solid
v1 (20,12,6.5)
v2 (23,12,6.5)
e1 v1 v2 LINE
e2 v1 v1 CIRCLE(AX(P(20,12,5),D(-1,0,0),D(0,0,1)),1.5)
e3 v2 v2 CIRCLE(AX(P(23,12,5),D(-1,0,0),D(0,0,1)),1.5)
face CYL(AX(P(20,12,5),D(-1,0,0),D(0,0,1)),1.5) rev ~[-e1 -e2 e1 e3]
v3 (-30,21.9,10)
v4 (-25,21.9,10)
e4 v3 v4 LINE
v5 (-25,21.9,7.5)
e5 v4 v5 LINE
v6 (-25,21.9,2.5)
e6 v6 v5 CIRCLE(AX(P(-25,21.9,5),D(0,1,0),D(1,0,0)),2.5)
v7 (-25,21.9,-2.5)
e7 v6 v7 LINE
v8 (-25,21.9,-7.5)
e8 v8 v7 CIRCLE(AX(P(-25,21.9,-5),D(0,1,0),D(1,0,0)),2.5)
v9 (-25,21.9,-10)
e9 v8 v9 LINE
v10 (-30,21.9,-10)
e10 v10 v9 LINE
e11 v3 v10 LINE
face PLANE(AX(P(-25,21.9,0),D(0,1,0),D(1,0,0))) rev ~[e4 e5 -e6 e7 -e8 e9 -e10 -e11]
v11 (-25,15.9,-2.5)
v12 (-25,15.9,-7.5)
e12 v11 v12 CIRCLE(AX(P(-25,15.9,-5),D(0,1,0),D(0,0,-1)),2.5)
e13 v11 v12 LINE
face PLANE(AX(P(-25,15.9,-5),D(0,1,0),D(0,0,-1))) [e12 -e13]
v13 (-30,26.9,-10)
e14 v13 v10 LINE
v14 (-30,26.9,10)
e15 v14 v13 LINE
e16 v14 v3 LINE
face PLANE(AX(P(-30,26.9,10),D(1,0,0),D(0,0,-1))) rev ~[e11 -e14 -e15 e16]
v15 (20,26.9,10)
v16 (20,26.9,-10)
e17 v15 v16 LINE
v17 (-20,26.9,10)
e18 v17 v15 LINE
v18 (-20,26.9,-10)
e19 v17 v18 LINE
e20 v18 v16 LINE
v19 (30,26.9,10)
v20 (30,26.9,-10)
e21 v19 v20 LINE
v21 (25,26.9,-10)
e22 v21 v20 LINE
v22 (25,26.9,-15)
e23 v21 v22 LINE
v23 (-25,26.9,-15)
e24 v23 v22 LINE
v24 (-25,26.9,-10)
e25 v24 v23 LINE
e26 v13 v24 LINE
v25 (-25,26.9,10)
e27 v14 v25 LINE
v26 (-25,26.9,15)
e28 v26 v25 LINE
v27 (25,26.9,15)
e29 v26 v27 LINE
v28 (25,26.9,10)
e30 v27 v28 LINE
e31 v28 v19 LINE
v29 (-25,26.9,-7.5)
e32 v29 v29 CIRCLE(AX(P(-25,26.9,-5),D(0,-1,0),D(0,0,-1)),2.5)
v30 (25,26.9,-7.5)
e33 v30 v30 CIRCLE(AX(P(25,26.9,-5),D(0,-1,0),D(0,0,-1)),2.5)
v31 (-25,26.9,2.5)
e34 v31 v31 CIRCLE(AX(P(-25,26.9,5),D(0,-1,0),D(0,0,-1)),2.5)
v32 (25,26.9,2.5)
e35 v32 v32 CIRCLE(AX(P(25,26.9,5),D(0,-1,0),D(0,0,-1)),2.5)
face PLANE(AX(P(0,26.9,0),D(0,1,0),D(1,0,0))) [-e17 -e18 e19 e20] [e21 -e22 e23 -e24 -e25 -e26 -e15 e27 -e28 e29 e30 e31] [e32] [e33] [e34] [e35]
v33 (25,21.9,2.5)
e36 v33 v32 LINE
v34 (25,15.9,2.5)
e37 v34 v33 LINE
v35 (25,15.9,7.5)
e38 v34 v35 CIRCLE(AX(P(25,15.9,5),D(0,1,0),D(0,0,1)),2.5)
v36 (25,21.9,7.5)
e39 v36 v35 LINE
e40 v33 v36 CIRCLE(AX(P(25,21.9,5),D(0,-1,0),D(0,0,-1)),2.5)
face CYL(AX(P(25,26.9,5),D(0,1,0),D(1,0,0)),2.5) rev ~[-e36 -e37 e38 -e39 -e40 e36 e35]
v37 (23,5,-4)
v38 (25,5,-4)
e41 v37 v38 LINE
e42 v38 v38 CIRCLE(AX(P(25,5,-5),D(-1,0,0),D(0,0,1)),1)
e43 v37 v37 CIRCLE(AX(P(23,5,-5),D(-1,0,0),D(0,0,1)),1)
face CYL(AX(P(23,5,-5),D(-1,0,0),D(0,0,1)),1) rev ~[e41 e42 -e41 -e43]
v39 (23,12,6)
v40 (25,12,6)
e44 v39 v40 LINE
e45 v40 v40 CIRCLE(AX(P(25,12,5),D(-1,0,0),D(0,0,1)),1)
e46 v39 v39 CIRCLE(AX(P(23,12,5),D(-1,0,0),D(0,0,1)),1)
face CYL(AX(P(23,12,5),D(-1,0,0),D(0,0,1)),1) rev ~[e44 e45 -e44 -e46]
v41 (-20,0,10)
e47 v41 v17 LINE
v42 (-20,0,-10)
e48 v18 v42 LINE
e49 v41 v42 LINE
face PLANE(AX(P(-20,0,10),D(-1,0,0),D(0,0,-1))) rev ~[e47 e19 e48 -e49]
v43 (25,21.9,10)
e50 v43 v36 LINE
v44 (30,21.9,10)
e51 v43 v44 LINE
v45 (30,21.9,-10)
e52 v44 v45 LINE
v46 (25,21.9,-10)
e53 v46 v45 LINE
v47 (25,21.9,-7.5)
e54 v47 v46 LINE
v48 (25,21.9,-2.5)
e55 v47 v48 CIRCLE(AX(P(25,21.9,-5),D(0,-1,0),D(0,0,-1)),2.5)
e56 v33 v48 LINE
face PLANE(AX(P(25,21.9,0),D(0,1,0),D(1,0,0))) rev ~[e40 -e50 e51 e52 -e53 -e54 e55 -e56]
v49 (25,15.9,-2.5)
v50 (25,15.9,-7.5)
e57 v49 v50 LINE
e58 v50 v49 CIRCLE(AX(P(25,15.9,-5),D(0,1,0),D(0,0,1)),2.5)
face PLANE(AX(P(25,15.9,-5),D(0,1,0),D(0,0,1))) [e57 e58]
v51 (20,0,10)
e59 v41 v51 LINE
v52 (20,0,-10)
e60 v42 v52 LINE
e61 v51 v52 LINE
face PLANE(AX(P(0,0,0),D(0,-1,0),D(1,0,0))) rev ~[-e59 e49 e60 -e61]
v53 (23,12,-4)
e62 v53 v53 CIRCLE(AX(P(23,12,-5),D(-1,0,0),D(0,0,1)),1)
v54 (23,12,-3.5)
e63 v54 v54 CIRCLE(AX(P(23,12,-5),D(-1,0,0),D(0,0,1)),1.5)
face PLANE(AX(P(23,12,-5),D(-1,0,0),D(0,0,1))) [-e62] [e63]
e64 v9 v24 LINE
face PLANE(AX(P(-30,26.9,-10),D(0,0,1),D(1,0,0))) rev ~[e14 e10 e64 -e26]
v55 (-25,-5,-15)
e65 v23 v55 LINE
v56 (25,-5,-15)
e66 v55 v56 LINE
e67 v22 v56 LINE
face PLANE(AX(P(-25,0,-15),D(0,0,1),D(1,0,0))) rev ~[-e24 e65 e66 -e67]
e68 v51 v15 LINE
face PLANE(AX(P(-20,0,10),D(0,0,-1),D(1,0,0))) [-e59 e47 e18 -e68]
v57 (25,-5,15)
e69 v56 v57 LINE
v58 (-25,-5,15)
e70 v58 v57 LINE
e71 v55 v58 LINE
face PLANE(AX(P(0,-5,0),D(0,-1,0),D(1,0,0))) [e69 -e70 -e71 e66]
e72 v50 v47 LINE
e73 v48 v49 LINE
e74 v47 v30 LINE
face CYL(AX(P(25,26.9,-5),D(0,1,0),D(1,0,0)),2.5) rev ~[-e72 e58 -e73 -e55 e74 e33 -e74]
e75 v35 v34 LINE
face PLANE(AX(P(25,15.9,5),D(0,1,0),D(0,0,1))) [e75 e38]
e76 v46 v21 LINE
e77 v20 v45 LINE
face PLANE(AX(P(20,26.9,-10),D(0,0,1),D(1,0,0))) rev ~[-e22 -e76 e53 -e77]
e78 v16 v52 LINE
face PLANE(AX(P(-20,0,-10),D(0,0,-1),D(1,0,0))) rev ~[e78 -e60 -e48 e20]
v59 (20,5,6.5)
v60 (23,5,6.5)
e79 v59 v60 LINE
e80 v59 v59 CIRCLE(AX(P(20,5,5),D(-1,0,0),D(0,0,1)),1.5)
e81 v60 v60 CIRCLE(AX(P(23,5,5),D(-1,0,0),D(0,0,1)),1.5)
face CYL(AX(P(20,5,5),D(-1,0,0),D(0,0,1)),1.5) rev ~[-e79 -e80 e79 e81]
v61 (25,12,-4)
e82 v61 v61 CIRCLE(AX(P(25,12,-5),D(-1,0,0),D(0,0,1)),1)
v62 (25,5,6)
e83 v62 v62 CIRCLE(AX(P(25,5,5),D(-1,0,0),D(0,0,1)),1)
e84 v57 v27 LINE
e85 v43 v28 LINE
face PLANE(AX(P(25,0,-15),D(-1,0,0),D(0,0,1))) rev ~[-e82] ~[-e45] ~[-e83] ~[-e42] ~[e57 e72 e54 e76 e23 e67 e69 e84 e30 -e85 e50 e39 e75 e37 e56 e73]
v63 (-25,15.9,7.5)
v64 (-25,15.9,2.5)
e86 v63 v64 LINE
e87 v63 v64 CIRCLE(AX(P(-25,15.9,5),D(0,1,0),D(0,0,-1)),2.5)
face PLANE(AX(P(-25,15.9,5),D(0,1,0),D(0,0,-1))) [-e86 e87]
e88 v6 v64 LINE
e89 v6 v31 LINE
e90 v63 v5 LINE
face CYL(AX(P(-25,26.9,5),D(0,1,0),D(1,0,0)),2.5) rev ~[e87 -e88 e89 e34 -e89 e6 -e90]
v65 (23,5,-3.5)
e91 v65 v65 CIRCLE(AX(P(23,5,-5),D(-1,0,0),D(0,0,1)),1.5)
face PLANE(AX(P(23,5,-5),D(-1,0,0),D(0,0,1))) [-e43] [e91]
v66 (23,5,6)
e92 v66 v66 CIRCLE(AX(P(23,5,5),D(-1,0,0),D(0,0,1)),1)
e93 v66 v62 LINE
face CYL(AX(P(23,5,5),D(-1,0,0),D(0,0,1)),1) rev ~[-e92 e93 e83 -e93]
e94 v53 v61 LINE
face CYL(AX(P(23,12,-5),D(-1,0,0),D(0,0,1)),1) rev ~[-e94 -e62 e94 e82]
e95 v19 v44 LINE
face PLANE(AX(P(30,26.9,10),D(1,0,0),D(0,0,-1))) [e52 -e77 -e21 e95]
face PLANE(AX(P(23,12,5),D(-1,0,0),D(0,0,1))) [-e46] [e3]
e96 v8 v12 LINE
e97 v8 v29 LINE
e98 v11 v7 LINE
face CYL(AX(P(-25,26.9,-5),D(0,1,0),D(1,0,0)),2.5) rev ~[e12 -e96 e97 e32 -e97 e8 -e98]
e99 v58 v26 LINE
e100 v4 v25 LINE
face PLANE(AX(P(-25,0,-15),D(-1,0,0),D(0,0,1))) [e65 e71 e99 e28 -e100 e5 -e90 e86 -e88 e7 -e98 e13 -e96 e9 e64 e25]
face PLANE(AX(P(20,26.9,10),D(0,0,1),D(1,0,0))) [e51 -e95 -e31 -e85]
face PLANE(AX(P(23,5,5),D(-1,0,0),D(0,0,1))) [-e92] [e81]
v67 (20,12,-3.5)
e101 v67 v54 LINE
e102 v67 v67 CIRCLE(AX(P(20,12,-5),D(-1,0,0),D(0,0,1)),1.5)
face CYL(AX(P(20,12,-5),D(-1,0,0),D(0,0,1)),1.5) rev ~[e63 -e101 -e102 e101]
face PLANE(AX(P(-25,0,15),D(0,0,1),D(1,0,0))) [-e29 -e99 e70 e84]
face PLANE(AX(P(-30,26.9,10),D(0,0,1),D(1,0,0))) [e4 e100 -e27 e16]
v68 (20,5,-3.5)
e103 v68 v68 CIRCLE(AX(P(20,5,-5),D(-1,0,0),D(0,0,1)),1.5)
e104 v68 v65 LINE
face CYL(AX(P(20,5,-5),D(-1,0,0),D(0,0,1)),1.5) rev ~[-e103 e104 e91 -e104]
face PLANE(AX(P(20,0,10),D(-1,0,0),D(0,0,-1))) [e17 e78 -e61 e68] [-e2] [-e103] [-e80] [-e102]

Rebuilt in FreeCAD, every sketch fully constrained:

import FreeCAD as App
import Part
import Sketcher

V = App.Vector

doc = App.newDocument("Part")
body = doc.addObject("PartDesign::Body", "Body")

# Sketch on XZ plane
sketch1 = body.newObject("Sketcher::SketchObject", "Sketch")
sketch1.AttachmentSupport = (doc.getObject("XZ_Plane"), [""])
sketch1.MapMode = "FlatFace"
sketch1.addGeometry(Part.LineSegment(V(-25, -15, 0), V(-25, 15, 0)), False)
sketch1.addGeometry(Part.LineSegment(V(-25, 15, 0), V(25, 15, 0)), False)
sketch1.addGeometry(Part.LineSegment(V(25, 15, 0), V(25, -15, 0)), False)
sketch1.addGeometry(Part.LineSegment(V(25, -15, 0), V(-25, -15, 0)), False)
sketch1.addGeometry(Part.LineSegment(V(20, 10, 0), V(-20, 10, 0)), False)
sketch1.addGeometry(Part.LineSegment(V(-20, 10, 0), V(-20, -10, 0)), False)
sketch1.addGeometry(Part.LineSegment(V(-20, -10, 0), V(20, -10, 0)), False)
sketch1.addGeometry(Part.LineSegment(V(20, -10, 0), V(20, 10, 0)), False)
sketch1.addConstraint(Sketcher.Constraint("Coincident", 0, 2, 1, 1))
sketch1.addConstraint(Sketcher.Constraint("Coincident", 1, 2, 2, 1))
sketch1.addConstraint(Sketcher.Constraint("Coincident", 2, 2, 3, 1))
sketch1.addConstraint(Sketcher.Constraint("Coincident", 3, 2, 0, 1))
sketch1.addConstraint(Sketcher.Constraint("Coincident", 4, 2, 5, 1))
sketch1.addConstraint(Sketcher.Constraint("Coincident", 5, 2, 6, 1))
sketch1.addConstraint(Sketcher.Constraint("Coincident", 6, 2, 7, 1))
sketch1.addConstraint(Sketcher.Constraint("Coincident", 7, 2, 4, 1))
sketch1.addConstraint(Sketcher.Constraint("Vertical", 0))
sketch1.addConstraint(Sketcher.Constraint("Horizontal", 1))
sketch1.addConstraint(Sketcher.Constraint("Vertical", 2))
sketch1.addConstraint(Sketcher.Constraint("Horizontal", 3))
sketch1.addConstraint(Sketcher.Constraint("Horizontal", 4))
sketch1.addConstraint(Sketcher.Constraint("Vertical", 5))
sketch1.addConstraint(Sketcher.Constraint("Horizontal", 6))
sketch1.addConstraint(Sketcher.Constraint("Vertical", 7))
sketch1.addConstraint(Sketcher.Constraint("Symmetric", 0, 2, 2, 2, -1, 1))
sketch1.addConstraint(Sketcher.Constraint("Symmetric", 4, 2, 6, 2, -1, 1))
sketch1.addConstraint(Sketcher.Constraint("DistanceX", 1, 1, 1, 2, 50.0))
sketch1.addConstraint(Sketcher.Constraint("DistanceX", 4, 2, 4, 1, 40.0))
sketch1.addConstraint(Sketcher.Constraint("DistanceY", 0, 1, 0, 2, 30.0))
sketch1.addConstraint(Sketcher.Constraint("DistanceY", 5, 2, 5, 1, 20.0))
pad1 = body.newObject("PartDesign::Pad", "Pad")
pad1.Profile = sketch1
pad1.Length = 26.9
pad1.Reversed = True

# Sketch on XZ plane
sketch2 = body.newObject("Sketcher::SketchObject", "Sketch001")
sketch2.AttachmentSupport = (doc.getObject("XZ_Plane"), [""])
sketch2.MapMode = "FlatFace"
sketch2.AttachmentOffset = App.Placement(V(0, 0, -26.9), App.Rotation())
sketch2.addGeometry(Part.LineSegment(V(20, -10, 0), V(20, 10, 0)), False)
sketch2.addGeometry(Part.LineSegment(V(20, 10, 0), V(30, 10, 0)), False)
sketch2.addGeometry(Part.LineSegment(V(30, 10, 0), V(30, -10, 0)), False)
sketch2.addGeometry(Part.LineSegment(V(30, -10, 0), V(20, -10, 0)), False)
sketch2.addGeometry(Part.Circle(V(25, 5, 0), V(0, 0, 1), 2.5), False)
sketch2.addGeometry(Part.Circle(V(25, -5, 0), V(0, 0, 1), 2.5), False)
sketch2.addGeometry(Part.LineSegment(V(-30, -10, 0), V(-30, 10, 0)), False)
sketch2.addGeometry(Part.LineSegment(V(-30, 10, 0), V(-20, 10, 0)), False)
sketch2.addGeometry(Part.LineSegment(V(-20, 10, 0), V(-20, -10, 0)), False)
sketch2.addGeometry(Part.LineSegment(V(-20, -10, 0), V(-30, -10, 0)), False)
sketch2.addGeometry(Part.Circle(V(-25, 5, 0), V(0, 0, 1), 2.5), False)
sketch2.addGeometry(Part.Circle(V(-25, -5, 0), V(0, 0, 1), 2.5), False)
sketch2.addConstraint(Sketcher.Constraint("Coincident", 0, 2, 1, 1))
sketch2.addConstraint(Sketcher.Constraint("Coincident", 1, 2, 2, 1))
sketch2.addConstraint(Sketcher.Constraint("Coincident", 2, 2, 3, 1))
sketch2.addConstraint(Sketcher.Constraint("Coincident", 3, 2, 0, 1))
sketch2.addConstraint(Sketcher.Constraint("Coincident", 6, 2, 7, 1))
sketch2.addConstraint(Sketcher.Constraint("Coincident", 7, 2, 8, 1))
sketch2.addConstraint(Sketcher.Constraint("Coincident", 8, 2, 9, 1))
sketch2.addConstraint(Sketcher.Constraint("Coincident", 9, 2, 6, 1))
sketch2.addConstraint(Sketcher.Constraint("Vertical", 0))
sketch2.addConstraint(Sketcher.Constraint("Horizontal", 1))
sketch2.addConstraint(Sketcher.Constraint("Vertical", 2))
sketch2.addConstraint(Sketcher.Constraint("Horizontal", 3))
sketch2.addConstraint(Sketcher.Constraint("Vertical", 6))
sketch2.addConstraint(Sketcher.Constraint("Horizontal", 7))
sketch2.addConstraint(Sketcher.Constraint("Vertical", 8))
sketch2.addConstraint(Sketcher.Constraint("Horizontal", 9))
sketch2.addConstraint(Sketcher.Constraint("Equal", 4, 5))
sketch2.addConstraint(Sketcher.Constraint("Equal", 5, 10))
sketch2.addConstraint(Sketcher.Constraint("Equal", 10, 11))
sketch2.addConstraint(Sketcher.Constraint("Symmetric", 5, 3, 10, 3, -1, 1))
sketch2.addConstraint(Sketcher.Constraint("Symmetric", 4, 3, 11, 3, -1, 1))
sketch2.addConstraint(Sketcher.Constraint("Symmetric", 2, 2, 6, 2, -1, 1))
sketch2.addConstraint(Sketcher.Constraint("Symmetric", 0, 2, 8, 2, -1, 1))
sketch2.addConstraint(Sketcher.Constraint("Symmetric", 4, 3, 10, 3, -2))
sketch2.addConstraint(Sketcher.Constraint("Horizontal", 1, 2, 6, 2))
sketch2.addConstraint(Sketcher.Constraint("Diameter", 4, 5.0))
sketch2.addConstraint(Sketcher.Constraint("DistanceX", 1, 1, 1, 2, 10.0))
sketch2.addConstraint(Sketcher.Constraint("DistanceY", 0, 1, 0, 2, 20.0))
sketch2.addConstraint(Sketcher.Constraint("DistanceX", -1, 1, 4, 3, 25.0))
sketch2.addConstraint(Sketcher.Constraint("DistanceY", -1, 1, 4, 3, 5.0))
sketch2.addConstraint(Sketcher.Constraint("DistanceX", -1, 1, 0, 2, 20.0))
pad2 = body.newObject("PartDesign::Pad", "Pad001")
pad2.Profile = sketch2
pad2.Length = 5

# Sketch on XZ plane
sketch3 = body.newObject("Sketcher::SketchObject", "Sketch002")
sketch3.AttachmentSupport = (doc.getObject("XZ_Plane"), [""])
sketch3.MapMode = "FlatFace"
sketch3.AttachmentOffset = App.Placement(V(0, 0, -26.9), App.Rotation())
sketch3.addGeometry(Part.Circle(V(-25, -5, 0), V(0, 0, 1), 2.5), False)
sketch3.addGeometry(Part.Circle(V(-25, 5, 0), V(0, 0, 1), 2.5), False)
sketch3.addGeometry(Part.Circle(V(25, 5, 0), V(0, 0, 1), 2.5), False)
sketch3.addGeometry(Part.Circle(V(25, -5, 0), V(0, 0, 1), 2.5), False)
sketch3.addConstraint(Sketcher.Constraint("Equal", 0, 1))
sketch3.addConstraint(Sketcher.Constraint("Equal", 1, 2))
sketch3.addConstraint(Sketcher.Constraint("Equal", 2, 3))
sketch3.addConstraint(Sketcher.Constraint("Symmetric", 0, 3, 2, 3, -1, 1))
sketch3.addConstraint(Sketcher.Constraint("Symmetric", 1, 3, 3, 3, -1, 1))
sketch3.addConstraint(Sketcher.Constraint("Symmetric", 1, 3, 2, 3, -2))
sketch3.addConstraint(Sketcher.Constraint("Diameter", 0, 5.0))
sketch3.addConstraint(Sketcher.Constraint("DistanceX", 0, 3, -1, 1, 25.0))
sketch3.addConstraint(Sketcher.Constraint("DistanceY", 0, 3, -1, 1, 5.0))
pocket1 = body.newObject("PartDesign::Pocket", "Pocket")
pocket1.Profile = sketch3
pocket1.Length = 11
pocket1.Reversed = True

# Sketch on YZ plane
sketch4 = body.newObject("Sketcher::SketchObject", "Sketch003")
sketch4.AttachmentSupport = (doc.getObject("YZ_Plane"), [""])
sketch4.MapMode = "FlatFace"
sketch4.AttachmentOffset = App.Placement(V(0, 0, 20), App.Rotation())
sketch4.addGeometry(Part.Circle(V(12, -5, 0), V(0, 0, 1), 1.5), False)
sketch4.addGeometry(Part.Circle(V(5, -5, 0), V(0, 0, 1), 1.5), False)
sketch4.addGeometry(Part.Circle(V(12, 5, 0), V(0, 0, 1), 1.5), False)
sketch4.addGeometry(Part.Circle(V(5, 5, 0), V(0, 0, 1), 1.5), False)
sketch4.addConstraint(Sketcher.Constraint("Equal", 0, 1))
sketch4.addConstraint(Sketcher.Constraint("Equal", 1, 2))
sketch4.addConstraint(Sketcher.Constraint("Equal", 2, 3))
sketch4.addConstraint(Sketcher.Constraint("Symmetric", 0, 3, 2, 3, -1))
sketch4.addConstraint(Sketcher.Constraint("Symmetric", 1, 3, 3, 3, -1))
sketch4.addConstraint(Sketcher.Constraint("Horizontal", 0, 3, 1, 3))
sketch4.addConstraint(Sketcher.Constraint("Diameter", 0, 3.0))
sketch4.addConstraint(Sketcher.Constraint("DistanceX", -1, 1, 0, 3, 12.0))
sketch4.addConstraint(Sketcher.Constraint("DistanceY", 0, 3, -1, 1, 5.0))
sketch4.addConstraint(Sketcher.Constraint("DistanceX", -1, 1, 1, 3, 5.0))
pocket2 = body.newObject("PartDesign::Pocket", "Pocket001")
pocket2.Profile = sketch4
pocket2.Length = 3
pocket2.Reversed = True

# Sketch on YZ plane
sketch5 = body.newObject("Sketcher::SketchObject", "Sketch004")
sketch5.AttachmentSupport = (doc.getObject("YZ_Plane"), [""])
sketch5.MapMode = "FlatFace"
sketch5.AttachmentOffset = App.Placement(V(0, 0, 23), App.Rotation())
sketch5.addGeometry(Part.Circle(V(12, -5, 0), V(0, 0, 1), 1), False)
sketch5.addGeometry(Part.Circle(V(12, 5, 0), V(0, 0, 1), 1), False)
sketch5.addGeometry(Part.Circle(V(5, -5, 0), V(0, 0, 1), 1), False)
sketch5.addGeometry(Part.Circle(V(5, 5, 0), V(0, 0, 1), 1), False)
sketch5.addConstraint(Sketcher.Constraint("Equal", 0, 1))
sketch5.addConstraint(Sketcher.Constraint("Equal", 1, 2))
sketch5.addConstraint(Sketcher.Constraint("Equal", 2, 3))
sketch5.addConstraint(Sketcher.Constraint("Symmetric", 0, 3, 1, 3, -1))
sketch5.addConstraint(Sketcher.Constraint("Symmetric", 2, 3, 3, 3, -1))
sketch5.addConstraint(Sketcher.Constraint("Horizontal", 0, 3, 2, 3))
sketch5.addConstraint(Sketcher.Constraint("Diameter", 0, 2.0))
sketch5.addConstraint(Sketcher.Constraint("DistanceX", -1, 1, 0, 3, 12.0))
sketch5.addConstraint(Sketcher.Constraint("DistanceY", 0, 3, -1, 1, 5.0))
sketch5.addConstraint(Sketcher.Constraint("DistanceX", -1, 1, 2, 3, 5.0))
pocket3 = body.newObject("PartDesign::Pocket", "Pocket002")
pocket3.Profile = sketch5
pocket3.Length = 9
pocket3.Reversed = True

# Sketch on XZ plane
sketch6 = body.newObject("Sketcher::SketchObject", "Sketch005")
sketch6.AttachmentSupport = (doc.getObject("XZ_Plane"), [""])
sketch6.MapMode = "FlatFace"
sketch6.addGeometry(Part.LineSegment(V(-25, 15, 0), V(-25, -15, 0)), False)
sketch6.addGeometry(Part.LineSegment(V(-25, -15, 0), V(25, -15, 0)), False)
sketch6.addGeometry(Part.LineSegment(V(25, -15, 0), V(25, 15, 0)), False)
sketch6.addGeometry(Part.LineSegment(V(25, 15, 0), V(-25, 15, 0)), False)
sketch6.addConstraint(Sketcher.Constraint("Coincident", 0, 2, 1, 1))
sketch6.addConstraint(Sketcher.Constraint("Coincident", 1, 2, 2, 1))
sketch6.addConstraint(Sketcher.Constraint("Coincident", 2, 2, 3, 1))
sketch6.addConstraint(Sketcher.Constraint("Coincident", 3, 2, 0, 1))
sketch6.addConstraint(Sketcher.Constraint("Vertical", 0))
sketch6.addConstraint(Sketcher.Constraint("Horizontal", 1))
sketch6.addConstraint(Sketcher.Constraint("Vertical", 2))
sketch6.addConstraint(Sketcher.Constraint("Horizontal", 3))
sketch6.addConstraint(Sketcher.Constraint("Symmetric", 0, 2, 2, 2, -1, 1))
sketch6.addConstraint(Sketcher.Constraint("DistanceX", 1, 1, 1, 2, 50.0))
sketch6.addConstraint(Sketcher.Constraint("DistanceY", 0, 2, 0, 1, 30.0))
pad3 = body.newObject("PartDesign::Pad", "Pad002")
pad3.Profile = sketch6
pad3.Length = 5

doc.recompute()
